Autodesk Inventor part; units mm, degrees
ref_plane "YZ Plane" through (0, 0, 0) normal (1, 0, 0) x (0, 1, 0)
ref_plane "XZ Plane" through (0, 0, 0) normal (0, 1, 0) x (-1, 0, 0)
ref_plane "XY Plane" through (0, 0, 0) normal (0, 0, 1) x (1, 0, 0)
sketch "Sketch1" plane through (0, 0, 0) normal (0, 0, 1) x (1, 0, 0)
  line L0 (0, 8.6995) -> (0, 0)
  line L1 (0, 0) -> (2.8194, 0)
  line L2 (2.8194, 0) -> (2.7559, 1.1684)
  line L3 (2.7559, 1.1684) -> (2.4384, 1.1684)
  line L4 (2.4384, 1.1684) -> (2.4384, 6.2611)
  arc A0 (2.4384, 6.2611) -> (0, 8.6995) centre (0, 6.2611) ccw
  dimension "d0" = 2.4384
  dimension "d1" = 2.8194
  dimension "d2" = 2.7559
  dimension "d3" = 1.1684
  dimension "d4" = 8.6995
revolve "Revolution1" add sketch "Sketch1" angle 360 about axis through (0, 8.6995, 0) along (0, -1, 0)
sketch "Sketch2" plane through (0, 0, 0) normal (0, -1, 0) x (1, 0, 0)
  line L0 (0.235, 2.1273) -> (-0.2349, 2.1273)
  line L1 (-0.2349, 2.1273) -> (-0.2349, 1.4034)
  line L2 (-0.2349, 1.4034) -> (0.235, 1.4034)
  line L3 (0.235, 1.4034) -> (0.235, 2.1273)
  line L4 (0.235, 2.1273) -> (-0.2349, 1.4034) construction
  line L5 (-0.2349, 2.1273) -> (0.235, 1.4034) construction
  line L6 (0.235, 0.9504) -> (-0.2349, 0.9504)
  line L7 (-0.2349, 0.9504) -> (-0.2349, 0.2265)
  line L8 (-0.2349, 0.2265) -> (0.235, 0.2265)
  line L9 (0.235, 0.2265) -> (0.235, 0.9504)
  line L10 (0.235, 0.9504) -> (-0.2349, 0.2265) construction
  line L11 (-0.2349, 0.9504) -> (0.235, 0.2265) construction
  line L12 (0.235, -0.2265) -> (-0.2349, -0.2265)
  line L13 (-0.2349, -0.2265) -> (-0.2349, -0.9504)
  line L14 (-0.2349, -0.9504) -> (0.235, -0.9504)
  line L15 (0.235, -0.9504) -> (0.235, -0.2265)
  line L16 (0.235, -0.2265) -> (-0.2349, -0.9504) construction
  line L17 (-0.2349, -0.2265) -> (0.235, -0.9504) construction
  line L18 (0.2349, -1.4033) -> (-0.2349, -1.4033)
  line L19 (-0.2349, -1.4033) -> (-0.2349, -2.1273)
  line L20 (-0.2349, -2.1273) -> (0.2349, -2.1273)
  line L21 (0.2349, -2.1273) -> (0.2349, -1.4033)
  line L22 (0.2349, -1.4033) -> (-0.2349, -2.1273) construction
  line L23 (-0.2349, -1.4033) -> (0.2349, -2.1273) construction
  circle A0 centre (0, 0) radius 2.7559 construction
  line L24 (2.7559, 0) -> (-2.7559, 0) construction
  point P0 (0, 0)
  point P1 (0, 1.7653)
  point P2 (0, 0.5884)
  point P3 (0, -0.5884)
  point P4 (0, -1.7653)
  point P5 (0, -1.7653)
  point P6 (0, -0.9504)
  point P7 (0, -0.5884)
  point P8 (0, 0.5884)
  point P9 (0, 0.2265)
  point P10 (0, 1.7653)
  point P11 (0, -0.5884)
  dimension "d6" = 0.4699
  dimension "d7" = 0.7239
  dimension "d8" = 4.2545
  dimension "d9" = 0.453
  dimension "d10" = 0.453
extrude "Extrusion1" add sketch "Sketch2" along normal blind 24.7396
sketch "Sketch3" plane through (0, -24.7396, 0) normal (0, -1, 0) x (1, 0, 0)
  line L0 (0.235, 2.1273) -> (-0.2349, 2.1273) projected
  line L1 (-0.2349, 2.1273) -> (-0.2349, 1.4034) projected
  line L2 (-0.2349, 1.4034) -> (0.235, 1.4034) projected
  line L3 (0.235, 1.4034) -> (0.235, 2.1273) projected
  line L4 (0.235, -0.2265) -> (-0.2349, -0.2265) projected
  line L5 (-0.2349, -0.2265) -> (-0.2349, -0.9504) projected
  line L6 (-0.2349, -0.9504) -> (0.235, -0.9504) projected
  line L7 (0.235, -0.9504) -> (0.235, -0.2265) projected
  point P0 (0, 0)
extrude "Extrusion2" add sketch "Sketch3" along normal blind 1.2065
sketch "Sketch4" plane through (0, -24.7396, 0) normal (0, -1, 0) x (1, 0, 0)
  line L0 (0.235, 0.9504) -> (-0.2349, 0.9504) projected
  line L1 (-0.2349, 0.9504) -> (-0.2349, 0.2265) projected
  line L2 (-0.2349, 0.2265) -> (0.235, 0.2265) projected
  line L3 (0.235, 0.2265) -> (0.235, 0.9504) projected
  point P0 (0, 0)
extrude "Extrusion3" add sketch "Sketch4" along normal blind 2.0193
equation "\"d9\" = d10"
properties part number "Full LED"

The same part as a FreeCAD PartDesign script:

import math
import FreeCAD as App
import Part
import Sketcher

V = App.Vector
Q = App.Units.Quantity

doc = App.newDocument("Part")
body = doc.addObject("PartDesign::Body", "Body")

# Sketch on XY plane
sketch1 = doc.addObject("Sketcher::SketchObject", "Sketch")
body.addObject(sketch1)
sketch1.AttachmentSupport = (doc.XY_Plane, [""])
sketch1.MapMode = "FlatFace"
sketch1.addGeometry(Part.ArcOfCircle(Part.Circle(V(0, 6.26, 0), V(0, 0, 1), 2.44), math.radians(0), math.radians(90)), False)
sketch1.addGeometry(Part.LineSegment(V(0, 8.7, 0), V(0, 0, 0)), False)
sketch1.addGeometry(Part.LineSegment(V(0, 0, 0), V(2.82, 0, 0)), False)
sketch1.addGeometry(Part.LineSegment(V(2.82, 0, 0), V(2.76, 1.17, 0)), False)
sketch1.addGeometry(Part.LineSegment(V(2.76, 1.17, 0), V(2.44, 1.17, 0)), False)
sketch1.addGeometry(Part.LineSegment(V(2.44, 1.17, 0), V(2.44, 6.26, 0)), False)
sketch1.addConstraint(Sketcher.Constraint("Coincident", 0, 2, 1, 1))
sketch1.addConstraint(Sketcher.Constraint("Coincident", 1, 2, 2, 1))
sketch1.addConstraint(Sketcher.Constraint("Coincident", 2, 2, 3, 1))
sketch1.addConstraint(Sketcher.Constraint("Coincident", 3, 2, 4, 1))
sketch1.addConstraint(Sketcher.Constraint("Coincident", 4, 2, 5, 1))
sketch1.addConstraint(Sketcher.Constraint("Tangent", 5, 2, 0, 1))
sketch1.addConstraint(Sketcher.Constraint("Vertical", 1))
sketch1.addConstraint(Sketcher.Constraint("Horizontal", 2))
sketch1.addConstraint(Sketcher.Constraint("Horizontal", 4))
sketch1.addConstraint(Sketcher.Constraint("Vertical", 5))
sketch1.addConstraint(Sketcher.Constraint("Coincident", 1, 2, -1, 1))
sketch1.addConstraint(Sketcher.Constraint("PointOnObject", 0, 3, -2))
sketch1.addConstraint(Sketcher.Constraint("Radius", 0, Q("0.096 in")))
sketch1.addConstraint(Sketcher.Constraint("DistanceX", 2, 1, 2, 2, Q("0.111 in")))
sketch1.addConstraint(Sketcher.Constraint("DistanceY", 1, 2, 1, 1, Q("0.3425 in")))
sketch1.addConstraint(Sketcher.Constraint("DistanceY", -1, 1, 3, 2, Q("0.046 in")))
sketch1.addConstraint(Sketcher.Constraint("DistanceX", -1, 1, 3, 2, Q("0.1085 in")))
revolution = doc.addObject("PartDesign::Revolution", "Revolution")
body.addObject(revolution)
revolution.Profile = sketch1
revolution.ReferenceAxis = (sketch1, ["V_Axis"])
revolution.Angle = 360

# Sketch on XZ plane
sketch2 = doc.addObject("Sketcher::SketchObject", "Sketch001")
body.addObject(sketch2)
sketch2.AttachmentSupport = (doc.XZ_Plane, [""])
sketch2.MapMode = "FlatFace"
sketch2.addGeometry(Part.LineSegment(V(0.23, 1.4, 0), V(0.23, 2.13, 0)), False)
sketch2.addGeometry(Part.LineSegment(V(0.23, 2.13, 0), V(-0.23, 2.13, 0)), False)
sketch2.addGeometry(Part.LineSegment(V(-0.23, 2.13, 0), V(-0.23, 1.4, 0)), False)
sketch2.addGeometry(Part.LineSegment(V(-0.23, 1.4, 0), V(0.23, 1.4, 0)), False)
sketch2.addGeometry(Part.LineSegment(V(0.23, 0.23, 0), V(0.23, 0.95, 0)), False)
sketch2.addGeometry(Part.LineSegment(V(0.23, 0.95, 0), V(-0.23, 0.95, 0)), False)
sketch2.addGeometry(Part.LineSegment(V(-0.23, 0.95, 0), V(-0.23, 0.23, 0)), False)
sketch2.addGeometry(Part.LineSegment(V(-0.23, 0.23, 0), V(0.23, 0.23, 0)), False)
sketch2.addGeometry(Part.LineSegment(V(0.23, -0.95, 0), V(0.23, -0.23, 0)), False)
sketch2.addGeometry(Part.LineSegment(V(0.23, -0.23, 0), V(-0.23, -0.23, 0)), False)
sketch2.addGeometry(Part.LineSegment(V(-0.23, -0.23, 0), V(-0.23, -0.95, 0)), False)
sketch2.addGeometry(Part.LineSegment(V(-0.23, -0.95, 0), V(0.23, -0.95, 0)), False)
sketch2.addGeometry(Part.LineSegment(V(0.23, -2.13, 0), V(0.23, -1.4, 0)), False)
sketch2.addGeometry(Part.LineSegment(V(0.23, -1.4, 0), V(-0.23, -1.4, 0)), False)
sketch2.addGeometry(Part.LineSegment(V(-0.23, -1.4, 0), V(-0.23, -2.13, 0)), False)
sketch2.addGeometry(Part.LineSegment(V(-0.23, -2.13, 0), V(0.23, -2.13, 0)), False)
sketch2.addConstraint(Sketcher.Constraint("Coincident", 0, 2, 1, 1))
sketch2.addConstraint(Sketcher.Constraint("Coincident", 1, 2, 2, 1))
sketch2.addConstraint(Sketcher.Constraint("Coincident", 2, 2, 3, 1))
sketch2.addConstraint(Sketcher.Constraint("Coincident", 3, 2, 0, 1))
sketch2.addConstraint(Sketcher.Constraint("Coincident", 4, 2, 5, 1))
sketch2.addConstraint(Sketcher.Constraint("Coincident", 5, 2, 6, 1))
sketch2.addConstraint(Sketcher.Constraint("Coincident", 6, 2, 7, 1))
sketch2.addConstraint(Sketcher.Constraint("Coincident", 7, 2, 4, 1))
sketch2.addConstraint(Sketcher.Constraint("Coincident", 8, 2, 9, 1))
sketch2.addConstraint(Sketcher.Constraint("Coincident", 9, 2, 10, 1))
sketch2.addConstraint(Sketcher.Constraint("Coincident", 10, 2, 11, 1))
sketch2.addConstraint(Sketcher.Constraint("Coincident", 11, 2, 8, 1))
sketch2.addConstraint(Sketcher.Constraint("Coincident", 12, 2, 13, 1))
sketch2.addConstraint(Sketcher.Constraint("Coincident", 13, 2, 14, 1))
sketch2.addConstraint(Sketcher.Constraint("Coincident", 14, 2, 15, 1))
sketch2.addConstraint(Sketcher.Constraint("Coincident", 15, 2, 12, 1))
sketch2.addConstraint(Sketcher.Constraint("Vertical", 0))
sketch2.addConstraint(Sketcher.Constraint("Horizontal", 1))
sketch2.addConstraint(Sketcher.Constraint("Vertical", 2))
sketch2.addConstraint(Sketcher.Constraint("Horizontal", 3))
sketch2.addConstraint(Sketcher.Constraint("Vertical", 4))
sketch2.addConstraint(Sketcher.Constraint("Horizontal", 5))
sketch2.addConstraint(Sketcher.Constraint("Vertical", 6))
sketch2.addConstraint(Sketcher.Constraint("Horizontal", 7))
sketch2.addConstraint(Sketcher.Constraint("Vertical", 8))
sketch2.addConstraint(Sketcher.Constraint("Horizontal", 9))
sketch2.addConstraint(Sketcher.Constraint("Vertical", 10))
sketch2.addConstraint(Sketcher.Constraint("Horizontal", 11))
sketch2.addConstraint(Sketcher.Constraint("Vertical", 12))
sketch2.addConstraint(Sketcher.Constraint("Horizontal", 13))
sketch2.addConstraint(Sketcher.Constraint("Vertical", 14))
sketch2.addConstraint(Sketcher.Constraint("Horizontal", 15))
sketch2.addConstraint(Sketcher.Constraint("Symmetric", 6, 2, 8, 2, -1, 1))
sketch2.addConstraint(Sketcher.Constraint("Symmetric", 4, 2, 10, 2, -1, 1))
sketch2.addConstraint(Sketcher.Constraint("Symmetric", 2, 2, 12, 2, -1, 1))
sketch2.addConstraint(Sketcher.Constraint("Symmetric", 0, 2, 14, 2, -1, 1))
sketch2.addConstraint(Sketcher.Constraint("Vertical", 3, 2, 4, 2))
sketch2.addConstraint(Sketcher.Constraint("Vertical", 2, 2, 5, 2))
sketch2.addConstraint(Sketcher.Constraint("Vertical", 7, 2, 8, 2))
sketch2.addConstraint(Sketcher.Constraint("Equal", 2, 4))
sketch2.addConstraint(Sketcher.Constraint("DistanceX", 1, 2, 1, 1, Q("0.0185 in")))
sketch2.addConstraint(Sketcher.Constraint("DistanceY", 0, 1, 0, 2, Q("0.0285 in")))
sketch2.addConstraint(Sketcher.Constraint("DistanceY", 4, 2, 3, 2, 0.453))
sketch2.addConstraint(Sketcher.Constraint("DistanceY", 8, 2, 7, 2, 0.453))
pad1 = doc.addObject("PartDesign::Pad", "Pad")
body.addObject(pad1)
pad1.Profile = sketch2
pad1.Length = Q("0.974 in")

# Sketch on XZ plane
sketch3 = doc.addObject("Sketcher::SketchObject", "Sketch002")
body.addObject(sketch3)
sketch3.AttachmentSupport = (doc.XZ_Plane, [""])
sketch3.MapMode = "FlatFace"
sketch3.AttachmentOffset = App.Placement(V(0, 0, 0.974 * 25.4), App.Rotation())
sketch3.addGeometry(Part.LineSegment(V(0.23, 1.4, 0), V(0.23, 2.13, 0)), False)
sketch3.addGeometry(Part.LineSegment(V(0.23, 2.13, 0), V(-0.23, 2.13, 0)), False)
sketch3.addGeometry(Part.LineSegment(V(-0.23, 2.13, 0), V(-0.23, 1.4, 0)), False)
sketch3.addGeometry(Part.LineSegment(V(-0.23, 1.4, 0), V(0.23, 1.4, 0)), False)
sketch3.addGeometry(Part.LineSegment(V(0.23, -0.95, 0), V(0.23, -0.23, 0)), False)
sketch3.addGeometry(Part.LineSegment(V(0.23, -0.23, 0), V(-0.23, -0.23, 0)), False)
sketch3.addGeometry(Part.LineSegment(V(-0.23, -0.23, 0), V(-0.23, -0.95, 0)), False)
sketch3.addGeometry(Part.LineSegment(V(-0.23, -0.95, 0), V(0.23, -0.95, 0)), False)
sketch3.addConstraint(Sketcher.Constraint("Coincident", 0, 2, 1, 1))
sketch3.addConstraint(Sketcher.Constraint("Coincident", 1, 2, 2, 1))
sketch3.addConstraint(Sketcher.Constraint("Coincident", 2, 2, 3, 1))
sketch3.addConstraint(Sketcher.Constraint("Coincident", 3, 2, 0, 1))
sketch3.addConstraint(Sketcher.Constraint("Coincident", 4, 2, 5, 1))
sketch3.addConstraint(Sketcher.Constraint("Coincident", 5, 2, 6, 1))
sketch3.addConstraint(Sketcher.Constraint("Coincident", 6, 2, 7, 1))
sketch3.addConstraint(Sketcher.Constraint("Coincident", 7, 2, 4, 1))
sketch3.addConstraint(Sketcher.Constraint("Vertical", 0))
sketch3.addConstraint(Sketcher.Constraint("Horizontal", 1))
sketch3.addConstraint(Sketcher.Constraint("Vertical", 2))
sketch3.addConstraint(Sketcher.Constraint("Horizontal", 3))
sketch3.addConstraint(Sketcher.Constraint("Vertical", 4))
sketch3.addConstraint(Sketcher.Constraint("Horizontal", 5))
sketch3.addConstraint(Sketcher.Constraint("Vertical", 6))
sketch3.addConstraint(Sketcher.Constraint("Horizontal", 7))
sketch3.addConstraint(Sketcher.Constraint("Vertical", 3, 2, 4, 2))
sketch3.addConstraint(Sketcher.Constraint("Vertical", 2, 2, 5, 2))
sketch3.addConstraint(Sketcher.Constraint("Equal", 2, 4))
sketch3.addConstraint(Sketcher.Constraint("DistanceX", 1, 2, 1, 1, Q("0.0185 in")))
sketch3.addConstraint(Sketcher.Constraint("DistanceY", 0, 1, 0, 2, Q("0.0285 in")))
sketch3.addConstraint(Sketcher.Constraint("DistanceX", -1, 1, 0, 2, 0.235))
sketch3.addConstraint(Sketcher.Constraint("DistanceY", -1, 1, 0, 2, 2.1273))
sketch3.addConstraint(Sketcher.Constraint("DistanceY", 4, 2, -1, 1, 0.2265))
pad2 = doc.addObject("PartDesign::Pad", "Pad001")
body.addObject(pad2)
pad2.Profile = sketch3
pad2.Length = Q("0.0475 in")

# Sketch on XZ plane
sketch4 = doc.addObject("Sketcher::SketchObject", "Sketch003")
body.addObject(sketch4)
sketch4.AttachmentSupport = (doc.XZ_Plane, [""])
sketch4.MapMode = "FlatFace"
sketch4.AttachmentOffset = App.Placement(V(0, 0, 0.974 * 25.4), App.Rotation())
sketch4.addGeometry(Part.LineSegment(V(0.23, 0.23, 0), V(0.23, 0.95, 0)), False)
sketch4.addGeometry(Part.LineSegment(V(0.23, 0.95, 0), V(-0.23, 0.95, 0)), False)
sketch4.addGeometry(Part.LineSegment(V(-0.23, 0.95, 0), V(-0.23, 0.23, 0)), False)
sketch4.addGeometry(Part.LineSegment(V(-0.23, 0.23, 0), V(0.23, 0.23, 0)), False)
sketch4.addConstraint(Sketcher.Constraint("Coincident", 0, 2, 1, 1))
sketch4.addConstraint(Sketcher.Constraint("Coincident", 1, 2, 2, 1))
sketch4.addConstraint(Sketcher.Constraint("Coincident", 2, 2, 3, 1))
sketch4.addConstraint(Sketcher.Constraint("Coincident", 3, 2, 0, 1))
sketch4.addConstraint(Sketcher.Constraint("Vertical", 0))
sketch4.addConstraint(Sketcher.Constraint("Horizontal", 1))
sketch4.addConstraint(Sketcher.Constraint("Vertical", 2))
sketch4.addConstraint(Sketcher.Constraint("Horizontal", 3))
sketch4.addConstraint(Sketcher.Constraint("DistanceX", 1, 2, 1, 1, Q("0.0185 in")))
sketch4.addConstraint(Sketcher.Constraint("DistanceY", 0, 1, 0, 2, Q("0.0285 in")))
sketch4.addConstraint(Sketcher.Constraint("DistanceX", -1, 1, 0, 2, 0.235))
sketch4.addConstraint(Sketcher.Constraint("DistanceY", -1, 1, 0, 2, 0.9504))
pad3 = doc.addObject("PartDesign::Pad", "Pad002")
body.addObject(pad3)
pad3.Profile = sketch4
pad3.Length = Q("0.0795 in")

doc.recompute()
